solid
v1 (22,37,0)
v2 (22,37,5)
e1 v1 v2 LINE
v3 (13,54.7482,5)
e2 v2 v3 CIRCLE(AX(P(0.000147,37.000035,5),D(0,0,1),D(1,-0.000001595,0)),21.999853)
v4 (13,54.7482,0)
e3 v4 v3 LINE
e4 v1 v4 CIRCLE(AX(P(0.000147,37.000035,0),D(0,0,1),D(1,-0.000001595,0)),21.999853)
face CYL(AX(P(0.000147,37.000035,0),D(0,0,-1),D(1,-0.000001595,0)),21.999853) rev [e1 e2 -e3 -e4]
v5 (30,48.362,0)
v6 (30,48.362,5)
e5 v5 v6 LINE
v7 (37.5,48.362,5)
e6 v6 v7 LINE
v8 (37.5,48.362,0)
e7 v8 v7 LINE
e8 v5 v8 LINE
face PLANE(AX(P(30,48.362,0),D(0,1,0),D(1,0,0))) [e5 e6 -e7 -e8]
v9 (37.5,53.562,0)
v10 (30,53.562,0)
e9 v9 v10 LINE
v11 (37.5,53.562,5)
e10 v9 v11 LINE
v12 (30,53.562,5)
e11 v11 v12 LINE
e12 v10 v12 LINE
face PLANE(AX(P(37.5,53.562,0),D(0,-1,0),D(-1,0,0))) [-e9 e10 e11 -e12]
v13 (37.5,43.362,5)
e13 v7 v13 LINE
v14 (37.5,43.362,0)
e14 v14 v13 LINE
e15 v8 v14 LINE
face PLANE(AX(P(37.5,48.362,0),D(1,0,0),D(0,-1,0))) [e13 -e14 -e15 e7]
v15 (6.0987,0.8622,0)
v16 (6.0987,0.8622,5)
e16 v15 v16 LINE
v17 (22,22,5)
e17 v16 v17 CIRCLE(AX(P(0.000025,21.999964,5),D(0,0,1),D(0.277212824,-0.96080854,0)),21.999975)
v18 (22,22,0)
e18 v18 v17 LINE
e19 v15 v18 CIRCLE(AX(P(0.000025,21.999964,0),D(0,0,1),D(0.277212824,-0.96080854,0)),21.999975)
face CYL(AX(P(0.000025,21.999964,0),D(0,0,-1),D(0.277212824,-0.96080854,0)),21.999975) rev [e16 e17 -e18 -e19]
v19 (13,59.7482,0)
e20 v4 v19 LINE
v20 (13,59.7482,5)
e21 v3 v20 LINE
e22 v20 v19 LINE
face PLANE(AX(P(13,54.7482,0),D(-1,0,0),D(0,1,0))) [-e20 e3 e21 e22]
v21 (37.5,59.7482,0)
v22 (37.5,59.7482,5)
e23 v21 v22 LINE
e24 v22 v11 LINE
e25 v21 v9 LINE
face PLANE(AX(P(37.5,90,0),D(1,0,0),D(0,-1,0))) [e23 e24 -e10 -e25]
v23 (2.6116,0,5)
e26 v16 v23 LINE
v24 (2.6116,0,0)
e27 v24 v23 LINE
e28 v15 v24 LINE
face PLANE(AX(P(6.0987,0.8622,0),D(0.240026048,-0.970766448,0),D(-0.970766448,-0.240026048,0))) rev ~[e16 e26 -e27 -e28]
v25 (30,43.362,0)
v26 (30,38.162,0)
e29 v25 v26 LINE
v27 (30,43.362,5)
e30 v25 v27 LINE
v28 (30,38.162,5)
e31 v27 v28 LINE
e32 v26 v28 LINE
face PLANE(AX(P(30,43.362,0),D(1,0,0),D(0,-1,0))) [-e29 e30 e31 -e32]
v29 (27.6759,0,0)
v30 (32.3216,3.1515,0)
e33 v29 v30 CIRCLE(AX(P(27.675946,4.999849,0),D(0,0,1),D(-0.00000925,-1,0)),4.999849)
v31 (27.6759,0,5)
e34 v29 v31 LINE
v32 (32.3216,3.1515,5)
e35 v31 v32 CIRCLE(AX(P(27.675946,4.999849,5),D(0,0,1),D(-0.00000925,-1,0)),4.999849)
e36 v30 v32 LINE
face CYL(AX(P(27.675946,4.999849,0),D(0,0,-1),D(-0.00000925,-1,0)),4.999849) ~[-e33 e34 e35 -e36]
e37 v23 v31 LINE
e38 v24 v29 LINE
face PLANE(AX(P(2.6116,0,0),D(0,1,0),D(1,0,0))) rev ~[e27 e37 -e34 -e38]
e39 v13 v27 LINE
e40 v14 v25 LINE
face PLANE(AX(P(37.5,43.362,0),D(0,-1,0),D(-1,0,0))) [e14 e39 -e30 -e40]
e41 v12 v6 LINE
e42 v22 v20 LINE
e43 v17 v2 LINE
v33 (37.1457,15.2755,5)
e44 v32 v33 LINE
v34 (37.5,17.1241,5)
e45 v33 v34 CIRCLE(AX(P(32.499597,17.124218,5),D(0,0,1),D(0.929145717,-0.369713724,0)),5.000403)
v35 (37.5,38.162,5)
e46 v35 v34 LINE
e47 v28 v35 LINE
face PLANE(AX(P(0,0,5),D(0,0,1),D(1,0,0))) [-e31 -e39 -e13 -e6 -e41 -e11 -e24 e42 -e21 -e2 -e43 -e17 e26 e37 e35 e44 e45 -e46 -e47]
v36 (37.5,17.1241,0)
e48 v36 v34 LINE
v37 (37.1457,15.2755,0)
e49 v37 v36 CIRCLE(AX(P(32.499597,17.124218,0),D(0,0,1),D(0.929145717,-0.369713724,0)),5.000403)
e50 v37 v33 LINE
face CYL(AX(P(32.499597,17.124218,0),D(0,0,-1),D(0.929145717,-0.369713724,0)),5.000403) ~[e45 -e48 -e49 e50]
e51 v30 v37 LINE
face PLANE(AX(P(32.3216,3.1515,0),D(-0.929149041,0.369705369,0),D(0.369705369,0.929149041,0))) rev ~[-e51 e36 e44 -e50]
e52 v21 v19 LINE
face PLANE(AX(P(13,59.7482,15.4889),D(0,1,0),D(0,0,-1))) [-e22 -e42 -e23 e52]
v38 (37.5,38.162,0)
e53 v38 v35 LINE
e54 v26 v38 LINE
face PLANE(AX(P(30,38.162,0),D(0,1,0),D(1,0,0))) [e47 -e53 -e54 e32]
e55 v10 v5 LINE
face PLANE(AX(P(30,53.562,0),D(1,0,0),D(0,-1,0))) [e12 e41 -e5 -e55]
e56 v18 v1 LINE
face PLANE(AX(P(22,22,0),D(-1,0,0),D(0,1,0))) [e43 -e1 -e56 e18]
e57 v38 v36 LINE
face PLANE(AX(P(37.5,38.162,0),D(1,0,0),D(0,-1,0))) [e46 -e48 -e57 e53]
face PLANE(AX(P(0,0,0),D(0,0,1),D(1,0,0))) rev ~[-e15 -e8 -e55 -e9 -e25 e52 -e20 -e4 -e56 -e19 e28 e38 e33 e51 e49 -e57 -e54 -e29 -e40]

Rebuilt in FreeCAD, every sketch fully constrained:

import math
import FreeCAD as App
import Part
import Sketcher
Q = App.Units.Quantity

doc = App.newDocument("Part")
body = doc.addObject("PartDesign::Body", "Body")

# Sketch on XY plane
sketch1 = body.newObject("Sketcher::SketchObject", "Sketch")
sketch1.AttachmentSupport = (doc.getObject("XY_Plane"), [""])
sketch1.MapMode = "FlatFace"
sketch1.addGeometry(Part.ArcOfCircle(Part.Circle(App.Vector(0, 22, 0), App.Vector(0, 0, 1), 22), math.radians(-74), math.radians(0)), False)
sketch1.addGeometry(Part.LineSegment(App.Vector(6.1, 0.9, 0), App.Vector(2.6, 0, 0)), False)
sketch1.addGeometry(Part.LineSegment(App.Vector(2.6, 0, 0), App.Vector(27.7, 0, 0)), False)
sketch1.addGeometry(Part.ArcOfCircle(Part.Circle(App.Vector(27.7, 5, 0), App.Vector(0, 0, 1), 5), math.radians(-90), math.radians(-22)), False)
sketch1.addGeometry(Part.LineSegment(App.Vector(32.3, 3.2, 0), App.Vector(37.1, 15.3, 0)), False)
sketch1.addGeometry(Part.ArcOfCircle(Part.Circle(App.Vector(32.5, 17.1, 0), App.Vector(0, 0, 1), 5), math.radians(-22), math.radians(0)), False)
sketch1.addGeometry(Part.LineSegment(App.Vector(37.5, 17.1, 0), App.Vector(37.5, 38.2, 0)), False)
sketch1.addGeometry(Part.LineSegment(App.Vector(37.5, 38.2, 0), App.Vector(30, 38.2, 0)), False)
sketch1.addGeometry(Part.LineSegment(App.Vector(30, 38.2, 0), App.Vector(30, 43.4, 0)), False)
sketch1.addGeometry(Part.LineSegment(App.Vector(30, 43.4, 0), App.Vector(37.5, 43.4, 0)), False)
sketch1.addGeometry(Part.LineSegment(App.Vector(37.5, 43.4, 0), App.Vector(37.5, 48.4, 0)), False)
sketch1.addGeometry(Part.LineSegment(App.Vector(37.5, 48.4, 0), App.Vector(30, 48.4, 0)), False)
sketch1.addGeometry(Part.LineSegment(App.Vector(30, 48.4, 0), App.Vector(30, 53.6, 0)), False)
sketch1.addGeometry(Part.LineSegment(App.Vector(30, 53.6, 0), App.Vector(37.5, 53.6, 0)), False)
sketch1.addGeometry(Part.LineSegment(App.Vector(37.5, 53.6, 0), App.Vector(37.5, 90, 0)), False)
sketch1.addGeometry(Part.LineSegment(App.Vector(37.5, 90, 0), App.Vector(22.5, 90, 0)), False)
sketch1.addGeometry(Part.LineSegment(App.Vector(22.5, 90, 0), App.Vector(22.5, 66.7, 0)), False)
sketch1.addGeometry(Part.LineSegment(App.Vector(22.5, 66.7, 0), App.Vector(13, 66.7, 0)), False)
sketch1.addGeometry(Part.LineSegment(App.Vector(13, 66.7, 0), App.Vector(13, 54.7, 0)), False)
sketch1.addGeometry(Part.ArcOfCircle(Part.Circle(App.Vector(0, 37, 0), App.Vector(0, 0, 1), 22), math.radians(0), math.radians(54)), False)
sketch1.addGeometry(Part.LineSegment(App.Vector(22, 37, 0), App.Vector(22, 22, 0)), False)
sketch1.addConstraint(Sketcher.Constraint("Coincident", 0, 1, 1, 1))
sketch1.addConstraint(Sketcher.Constraint("Coincident", 1, 2, 2, 1))
sketch1.addConstraint(Sketcher.Constraint("Tangent", 2, 2, 3, 1))
sketch1.addConstraint(Sketcher.Constraint("Tangent", 3, 2, 4, 1))
sketch1.addConstraint(Sketcher.Constraint("Tangent", 4, 2, 5, 1))
sketch1.addConstraint(Sketcher.Constraint("Tangent", 5, 2, 6, 1))
sketch1.addConstraint(Sketcher.Constraint("Coincident", 6, 2, 7, 1))
sketch1.addConstraint(Sketcher.Constraint("Coincident", 7, 2, 8, 1))
sketch1.addConstraint(Sketcher.Constraint("Coincident", 8, 2, 9, 1))
sketch1.addConstraint(Sketcher.Constraint("Coincident", 9, 2, 10, 1))
sketch1.addConstraint(Sketcher.Constraint("Coincident", 10, 2, 11, 1))
sketch1.addConstraint(Sketcher.Constraint("Coincident", 11, 2, 12, 1))
sketch1.addConstraint(Sketcher.Constraint("Coincident", 12, 2, 13, 1))
sketch1.addConstraint(Sketcher.Constraint("Coincident", 13, 2, 14, 1))
sketch1.addConstraint(Sketcher.Constraint("Coincident", 14, 2, 15, 1))
sketch1.addConstraint(Sketcher.Constraint("Coincident", 15, 2, 16, 1))
sketch1.addConstraint(Sketcher.Constraint("Coincident", 16, 2, 17, 1))
sketch1.addConstraint(Sketcher.Constraint("Coincident", 17, 2, 18, 1))
sketch1.addConstraint(Sketcher.Constraint("Coincident", 18, 2, 19, 2))
sketch1.addConstraint(Sketcher.Constraint("Tangent", 19, 1, 20, 1))
sketch1.addConstraint(Sketcher.Constraint("Tangent", 20, 2, 0, 2))
sketch1.addConstraint(Sketcher.Constraint("Horizontal", 2))
sketch1.addConstraint(Sketcher.Constraint("Vertical", 6))
sketch1.addConstraint(Sketcher.Constraint("Horizontal", 7))
sketch1.addConstraint(Sketcher.Constraint("Vertical", 8))
sketch1.addConstraint(Sketcher.Constraint("Horizontal", 9))
sketch1.addConstraint(Sketcher.Constraint("Vertical", 10))
sketch1.addConstraint(Sketcher.Constraint("Horizontal", 11))
sketch1.addConstraint(Sketcher.Constraint("Vertical", 12))
sketch1.addConstraint(Sketcher.Constraint("Horizontal", 13))
sketch1.addConstraint(Sketcher.Constraint("Vertical", 14))
sketch1.addConstraint(Sketcher.Constraint("Horizontal", 15))
sketch1.addConstraint(Sketcher.Constraint("Vertical", 16))
sketch1.addConstraint(Sketcher.Constraint("Horizontal", 17))
sketch1.addConstraint(Sketcher.Constraint("Vertical", 18))
sketch1.addConstraint(Sketcher.Constraint("Vertical", 20))
sketch1.addConstraint(Sketcher.Constraint("Equal", 3, 5))
sketch1.addConstraint(Sketcher.Constraint("Equal", 0, 19))
sketch1.addConstraint(Sketcher.Constraint("PointOnObject", 0, 3, -2))
sketch1.addConstraint(Sketcher.Constraint("PointOnObject", 1, 2, -1))
sketch1.addConstraint(Sketcher.Constraint("Vertical", 6, 2, 9, 2))
sketch1.addConstraint(Sketcher.Constraint("Vertical", 8, 2, 11, 2))
sketch1.addConstraint(Sketcher.Constraint("Vertical", 10, 2, 13, 2))
sketch1.addConstraint(Sketcher.Constraint("Equal", 8, 12))
sketch1.addConstraint(Sketcher.Constraint("Equal", 15, 20))
sketch1.addConstraint(Sketcher.Constraint("Radius", 0, Q("22 mm")))
sketch1.addConstraint(Sketcher.Constraint("Radius", 3, Q("5 mm")))
sketch1.addConstraint(Sketcher.Constraint("DistanceX", 15, 2, 15, 1, Q("15 mm")))
sketch1.addConstraint(Sketcher.Constraint("DistanceY", 10, 1, 10, 2, Q("5 mm")))
sketch1.addConstraint(Sketcher.Constraint("DistanceY", 18, 2, 18, 1, Q("12 mm")))
sketch1.addConstraint(Sketcher.Constraint("DistanceY", 8, 1, 8, 2, Q("5.2 mm")))
sketch1.addConstraint(Sketcher.Constraint("DistanceY", -1, 1, 0, 3, Q("22 mm")))
sketch1.addConstraint(Sketcher.Constraint("DistanceY", -1, 1, 14, 2, Q("90 mm")))
sketch1.addConstraint(Sketcher.Constraint("DistanceX", -1, 1, 17, 2, Q("13 mm")))
sketch1.addConstraint(Sketcher.Constraint("DistanceX", -1, 1, 15, 2, Q("22.5 mm")))
sketch1.addConstraint(Sketcher.Constraint("DistanceX", 7, 2, 7, 1, Q("7.5 mm")))
sketch1.addConstraint(Sketcher.Constraint("DistanceY", 3, 3, 5, 3, Q("12.124 mm")))
sketch1.addConstraint(Sketcher.Constraint("DistanceY", 6, 1, 6, 2, Q("21.038 mm")))
sketch1.addConstraint(Sketcher.Constraint("DistanceX", 1, 2, 3, 2, Q("29.71 mm")))
sketch1.addConstraint(Sketcher.Constraint("Distance", 1, Q("3.592 mm")))
sketch1.addConstraint(Sketcher.Constraint("DistanceX", 2, 1, 2, 2, Q("25.0643 mm")))
pad1 = body.newObject("PartDesign::Pad", "Pad")
pad1.Profile = sketch1
pad1.Length = 5

# Sketch on XY plane
sketch2 = body.newObject("Sketcher::SketchObject", "Sketch001")
sketch2.AttachmentSupport = (doc.getObject("XY_Plane"), [""])
sketch2.MapMode = "FlatFace"
sketch2.AttachmentOffset = App.Placement(App.Vector(0, 0, 5), App.Rotation())
sketch2.addGeometry(Part.Circle(App.Vector(30, 86.5, 0), App.Vector(0, 0, 1), 1.7), False)
sketch2.addGeometry(Part.Circle(App.Vector(30, 68.5, 0), App.Vector(0, 0, 1), 1.7), False)
sketch2.addConstraint(Sketcher.Constraint("Equal", 0, 1))
sketch2.addConstraint(Sketcher.Constraint("Vertical", 0, 3, 1, 3))
sketch2.addConstraint(Sketcher.Constraint("Diameter", 0, Q("3.4 mm")))
sketch2.addConstraint(Sketcher.Constraint("DistanceX", -1, 1, 0, 3, Q("30 mm")))
sketch2.addConstraint(Sketcher.Constraint("DistanceY", 1, 3, 0, 3, Q("18 mm")))
sketch2.addConstraint(Sketcher.Constraint("DistanceY", -1, 1, 0, 3, Q("86.5 mm")))
doc.recompute()
hole = body.newObject("PartDesign::Hole", "Hole")
hole.Profile = sketch2
hole.ThreadType = "None"
hole.Diameter = 3.4
hole.DepthType = "ThroughAll"

# Sketch on YZ plane
sketch3 = body.newObject("Sketcher::SketchObject", "Sketch002")
sketch3.AttachmentSupport = (doc.getObject("YZ_Plane"), [""])
sketch3.MapMode = "FlatFace"
sketch3.AttachmentOffset = App.Placement(App.Vector(0, 0, 22.5), App.Rotation())
sketch3.addGeometry(Part.LineSegment(App.Vector(91, -8, 0), App.Vector(67, -8, 0)), False)
sketch3.addGeometry(Part.LineSegment(App.Vector(67, -8, 0), App.Vector(67, 13, 0)), False)
sketch3.addGeometry(Part.LineSegment(App.Vector(67, 13, 0), App.Vector(91, 13, 0)), False)
sketch3.addGeometry(Part.LineSegment(App.Vector(91, 13, 0), App.Vector(91, -8, 0)), False)
sketch3.addConstraint(Sketcher.Constraint("Coincident", 0, 2, 1, 1))
sketch3.addConstraint(Sketcher.Constraint("Coincident", 1, 2, 2, 1))
sketch3.addConstraint(Sketcher.Constraint("Coincident", 2, 2, 3, 1))
sketch3.addConstraint(Sketcher.Constraint("Coincident", 3, 2, 0, 1))
sketch3.addConstraint(Sketcher.Constraint("Horizontal", 0))
sketch3.addConstraint(Sketcher.Constraint("Vertical", 1))
sketch3.addConstraint(Sketcher.Constraint("Horizontal", 2))
sketch3.addConstraint(Sketcher.Constraint("Vertical", 3))
sketch3.addConstraint(Sketcher.Constraint("DistanceX", 0, 2, 0, 1, Q("24.2425 mm")))
sketch3.addConstraint(Sketcher.Constraint("DistanceY", 1, 1, 1, 2, Q("21.2537 mm")))
sketch3.addConstraint(Sketcher.Constraint("DistanceX", -1, 1, 0, 2, Q("66.7482 mm")))
sketch3.addConstraint(Sketcher.Constraint("DistanceY", 0, 2, -1, 1, Q("7.9102 mm")))
pocket1 = body.newObject("PartDesign::Pocket", "Pocket")
pocket1.Profile = sketch3
pocket1.Length = 15
pocket1.Reversed = True

# Sketch on YZ plane
sketch4 = body.newObject("Sketcher::SketchObject", "Sketch003")
sketch4.AttachmentSupport = (doc.getObject("YZ_Plane"), [""])
sketch4.MapMode = "FlatFace"
sketch4.AttachmentOffset = App.Placement(App.Vector(0, 0, 13), App.Rotation())
sketch4.addGeometry(Part.LineSegment(App.Vector(69, 15, 0), App.Vector(69, -9, 0)), False)
sketch4.addGeometry(Part.LineSegment(App.Vector(69, -9, 0), App.Vector(60, -9, 0)), False)
sketch4.addGeometry(Part.LineSegment(App.Vector(60, -9, 0), App.Vector(60, 15, 0)), False)
sketch4.addGeometry(Part.LineSegment(App.Vector(60, 15, 0), App.Vector(69, 15, 0)), False)
sketch4.addConstraint(Sketcher.Constraint("Coincident", 0, 2, 1, 1))
sketch4.addConstraint(Sketcher.Constraint("Coincident", 1, 2, 2, 1))
sketch4.addConstraint(Sketcher.Constraint("Coincident", 2, 2, 3, 1))
sketch4.addConstraint(Sketcher.Constraint("Coincident", 3, 2, 0, 1))
sketch4.addConstraint(Sketcher.Constraint("Vertical", 0))
sketch4.addConstraint(Sketcher.Constraint("Horizontal", 1))
sketch4.addConstraint(Sketcher.Constraint("Vertical", 2))
sketch4.addConstraint(Sketcher.Constraint("Horizontal", 3))
sketch4.addConstraint(Sketcher.Constraint("DistanceY", 0, 2, 0, 1, Q("24.404 mm")))
sketch4.addConstraint(Sketcher.Constraint("DistanceX", 1, 2, 1, 1, Q("9.3214 mm")))
sketch4.addConstraint(Sketcher.Constraint("DistanceY", 0, 2, -1, 1, Q("8.915 mm")))
sketch4.addConstraint(Sketcher.Constraint("DistanceX", -1, 1, 0, 2, Q("69.0696 mm")))
pocket2 = body.newObject("PartDesign::Pocket", "Pocket001")
pocket2.Profile = sketch4
pocket2.Length = 40
pocket2.Reversed = True

doc.recompute()
